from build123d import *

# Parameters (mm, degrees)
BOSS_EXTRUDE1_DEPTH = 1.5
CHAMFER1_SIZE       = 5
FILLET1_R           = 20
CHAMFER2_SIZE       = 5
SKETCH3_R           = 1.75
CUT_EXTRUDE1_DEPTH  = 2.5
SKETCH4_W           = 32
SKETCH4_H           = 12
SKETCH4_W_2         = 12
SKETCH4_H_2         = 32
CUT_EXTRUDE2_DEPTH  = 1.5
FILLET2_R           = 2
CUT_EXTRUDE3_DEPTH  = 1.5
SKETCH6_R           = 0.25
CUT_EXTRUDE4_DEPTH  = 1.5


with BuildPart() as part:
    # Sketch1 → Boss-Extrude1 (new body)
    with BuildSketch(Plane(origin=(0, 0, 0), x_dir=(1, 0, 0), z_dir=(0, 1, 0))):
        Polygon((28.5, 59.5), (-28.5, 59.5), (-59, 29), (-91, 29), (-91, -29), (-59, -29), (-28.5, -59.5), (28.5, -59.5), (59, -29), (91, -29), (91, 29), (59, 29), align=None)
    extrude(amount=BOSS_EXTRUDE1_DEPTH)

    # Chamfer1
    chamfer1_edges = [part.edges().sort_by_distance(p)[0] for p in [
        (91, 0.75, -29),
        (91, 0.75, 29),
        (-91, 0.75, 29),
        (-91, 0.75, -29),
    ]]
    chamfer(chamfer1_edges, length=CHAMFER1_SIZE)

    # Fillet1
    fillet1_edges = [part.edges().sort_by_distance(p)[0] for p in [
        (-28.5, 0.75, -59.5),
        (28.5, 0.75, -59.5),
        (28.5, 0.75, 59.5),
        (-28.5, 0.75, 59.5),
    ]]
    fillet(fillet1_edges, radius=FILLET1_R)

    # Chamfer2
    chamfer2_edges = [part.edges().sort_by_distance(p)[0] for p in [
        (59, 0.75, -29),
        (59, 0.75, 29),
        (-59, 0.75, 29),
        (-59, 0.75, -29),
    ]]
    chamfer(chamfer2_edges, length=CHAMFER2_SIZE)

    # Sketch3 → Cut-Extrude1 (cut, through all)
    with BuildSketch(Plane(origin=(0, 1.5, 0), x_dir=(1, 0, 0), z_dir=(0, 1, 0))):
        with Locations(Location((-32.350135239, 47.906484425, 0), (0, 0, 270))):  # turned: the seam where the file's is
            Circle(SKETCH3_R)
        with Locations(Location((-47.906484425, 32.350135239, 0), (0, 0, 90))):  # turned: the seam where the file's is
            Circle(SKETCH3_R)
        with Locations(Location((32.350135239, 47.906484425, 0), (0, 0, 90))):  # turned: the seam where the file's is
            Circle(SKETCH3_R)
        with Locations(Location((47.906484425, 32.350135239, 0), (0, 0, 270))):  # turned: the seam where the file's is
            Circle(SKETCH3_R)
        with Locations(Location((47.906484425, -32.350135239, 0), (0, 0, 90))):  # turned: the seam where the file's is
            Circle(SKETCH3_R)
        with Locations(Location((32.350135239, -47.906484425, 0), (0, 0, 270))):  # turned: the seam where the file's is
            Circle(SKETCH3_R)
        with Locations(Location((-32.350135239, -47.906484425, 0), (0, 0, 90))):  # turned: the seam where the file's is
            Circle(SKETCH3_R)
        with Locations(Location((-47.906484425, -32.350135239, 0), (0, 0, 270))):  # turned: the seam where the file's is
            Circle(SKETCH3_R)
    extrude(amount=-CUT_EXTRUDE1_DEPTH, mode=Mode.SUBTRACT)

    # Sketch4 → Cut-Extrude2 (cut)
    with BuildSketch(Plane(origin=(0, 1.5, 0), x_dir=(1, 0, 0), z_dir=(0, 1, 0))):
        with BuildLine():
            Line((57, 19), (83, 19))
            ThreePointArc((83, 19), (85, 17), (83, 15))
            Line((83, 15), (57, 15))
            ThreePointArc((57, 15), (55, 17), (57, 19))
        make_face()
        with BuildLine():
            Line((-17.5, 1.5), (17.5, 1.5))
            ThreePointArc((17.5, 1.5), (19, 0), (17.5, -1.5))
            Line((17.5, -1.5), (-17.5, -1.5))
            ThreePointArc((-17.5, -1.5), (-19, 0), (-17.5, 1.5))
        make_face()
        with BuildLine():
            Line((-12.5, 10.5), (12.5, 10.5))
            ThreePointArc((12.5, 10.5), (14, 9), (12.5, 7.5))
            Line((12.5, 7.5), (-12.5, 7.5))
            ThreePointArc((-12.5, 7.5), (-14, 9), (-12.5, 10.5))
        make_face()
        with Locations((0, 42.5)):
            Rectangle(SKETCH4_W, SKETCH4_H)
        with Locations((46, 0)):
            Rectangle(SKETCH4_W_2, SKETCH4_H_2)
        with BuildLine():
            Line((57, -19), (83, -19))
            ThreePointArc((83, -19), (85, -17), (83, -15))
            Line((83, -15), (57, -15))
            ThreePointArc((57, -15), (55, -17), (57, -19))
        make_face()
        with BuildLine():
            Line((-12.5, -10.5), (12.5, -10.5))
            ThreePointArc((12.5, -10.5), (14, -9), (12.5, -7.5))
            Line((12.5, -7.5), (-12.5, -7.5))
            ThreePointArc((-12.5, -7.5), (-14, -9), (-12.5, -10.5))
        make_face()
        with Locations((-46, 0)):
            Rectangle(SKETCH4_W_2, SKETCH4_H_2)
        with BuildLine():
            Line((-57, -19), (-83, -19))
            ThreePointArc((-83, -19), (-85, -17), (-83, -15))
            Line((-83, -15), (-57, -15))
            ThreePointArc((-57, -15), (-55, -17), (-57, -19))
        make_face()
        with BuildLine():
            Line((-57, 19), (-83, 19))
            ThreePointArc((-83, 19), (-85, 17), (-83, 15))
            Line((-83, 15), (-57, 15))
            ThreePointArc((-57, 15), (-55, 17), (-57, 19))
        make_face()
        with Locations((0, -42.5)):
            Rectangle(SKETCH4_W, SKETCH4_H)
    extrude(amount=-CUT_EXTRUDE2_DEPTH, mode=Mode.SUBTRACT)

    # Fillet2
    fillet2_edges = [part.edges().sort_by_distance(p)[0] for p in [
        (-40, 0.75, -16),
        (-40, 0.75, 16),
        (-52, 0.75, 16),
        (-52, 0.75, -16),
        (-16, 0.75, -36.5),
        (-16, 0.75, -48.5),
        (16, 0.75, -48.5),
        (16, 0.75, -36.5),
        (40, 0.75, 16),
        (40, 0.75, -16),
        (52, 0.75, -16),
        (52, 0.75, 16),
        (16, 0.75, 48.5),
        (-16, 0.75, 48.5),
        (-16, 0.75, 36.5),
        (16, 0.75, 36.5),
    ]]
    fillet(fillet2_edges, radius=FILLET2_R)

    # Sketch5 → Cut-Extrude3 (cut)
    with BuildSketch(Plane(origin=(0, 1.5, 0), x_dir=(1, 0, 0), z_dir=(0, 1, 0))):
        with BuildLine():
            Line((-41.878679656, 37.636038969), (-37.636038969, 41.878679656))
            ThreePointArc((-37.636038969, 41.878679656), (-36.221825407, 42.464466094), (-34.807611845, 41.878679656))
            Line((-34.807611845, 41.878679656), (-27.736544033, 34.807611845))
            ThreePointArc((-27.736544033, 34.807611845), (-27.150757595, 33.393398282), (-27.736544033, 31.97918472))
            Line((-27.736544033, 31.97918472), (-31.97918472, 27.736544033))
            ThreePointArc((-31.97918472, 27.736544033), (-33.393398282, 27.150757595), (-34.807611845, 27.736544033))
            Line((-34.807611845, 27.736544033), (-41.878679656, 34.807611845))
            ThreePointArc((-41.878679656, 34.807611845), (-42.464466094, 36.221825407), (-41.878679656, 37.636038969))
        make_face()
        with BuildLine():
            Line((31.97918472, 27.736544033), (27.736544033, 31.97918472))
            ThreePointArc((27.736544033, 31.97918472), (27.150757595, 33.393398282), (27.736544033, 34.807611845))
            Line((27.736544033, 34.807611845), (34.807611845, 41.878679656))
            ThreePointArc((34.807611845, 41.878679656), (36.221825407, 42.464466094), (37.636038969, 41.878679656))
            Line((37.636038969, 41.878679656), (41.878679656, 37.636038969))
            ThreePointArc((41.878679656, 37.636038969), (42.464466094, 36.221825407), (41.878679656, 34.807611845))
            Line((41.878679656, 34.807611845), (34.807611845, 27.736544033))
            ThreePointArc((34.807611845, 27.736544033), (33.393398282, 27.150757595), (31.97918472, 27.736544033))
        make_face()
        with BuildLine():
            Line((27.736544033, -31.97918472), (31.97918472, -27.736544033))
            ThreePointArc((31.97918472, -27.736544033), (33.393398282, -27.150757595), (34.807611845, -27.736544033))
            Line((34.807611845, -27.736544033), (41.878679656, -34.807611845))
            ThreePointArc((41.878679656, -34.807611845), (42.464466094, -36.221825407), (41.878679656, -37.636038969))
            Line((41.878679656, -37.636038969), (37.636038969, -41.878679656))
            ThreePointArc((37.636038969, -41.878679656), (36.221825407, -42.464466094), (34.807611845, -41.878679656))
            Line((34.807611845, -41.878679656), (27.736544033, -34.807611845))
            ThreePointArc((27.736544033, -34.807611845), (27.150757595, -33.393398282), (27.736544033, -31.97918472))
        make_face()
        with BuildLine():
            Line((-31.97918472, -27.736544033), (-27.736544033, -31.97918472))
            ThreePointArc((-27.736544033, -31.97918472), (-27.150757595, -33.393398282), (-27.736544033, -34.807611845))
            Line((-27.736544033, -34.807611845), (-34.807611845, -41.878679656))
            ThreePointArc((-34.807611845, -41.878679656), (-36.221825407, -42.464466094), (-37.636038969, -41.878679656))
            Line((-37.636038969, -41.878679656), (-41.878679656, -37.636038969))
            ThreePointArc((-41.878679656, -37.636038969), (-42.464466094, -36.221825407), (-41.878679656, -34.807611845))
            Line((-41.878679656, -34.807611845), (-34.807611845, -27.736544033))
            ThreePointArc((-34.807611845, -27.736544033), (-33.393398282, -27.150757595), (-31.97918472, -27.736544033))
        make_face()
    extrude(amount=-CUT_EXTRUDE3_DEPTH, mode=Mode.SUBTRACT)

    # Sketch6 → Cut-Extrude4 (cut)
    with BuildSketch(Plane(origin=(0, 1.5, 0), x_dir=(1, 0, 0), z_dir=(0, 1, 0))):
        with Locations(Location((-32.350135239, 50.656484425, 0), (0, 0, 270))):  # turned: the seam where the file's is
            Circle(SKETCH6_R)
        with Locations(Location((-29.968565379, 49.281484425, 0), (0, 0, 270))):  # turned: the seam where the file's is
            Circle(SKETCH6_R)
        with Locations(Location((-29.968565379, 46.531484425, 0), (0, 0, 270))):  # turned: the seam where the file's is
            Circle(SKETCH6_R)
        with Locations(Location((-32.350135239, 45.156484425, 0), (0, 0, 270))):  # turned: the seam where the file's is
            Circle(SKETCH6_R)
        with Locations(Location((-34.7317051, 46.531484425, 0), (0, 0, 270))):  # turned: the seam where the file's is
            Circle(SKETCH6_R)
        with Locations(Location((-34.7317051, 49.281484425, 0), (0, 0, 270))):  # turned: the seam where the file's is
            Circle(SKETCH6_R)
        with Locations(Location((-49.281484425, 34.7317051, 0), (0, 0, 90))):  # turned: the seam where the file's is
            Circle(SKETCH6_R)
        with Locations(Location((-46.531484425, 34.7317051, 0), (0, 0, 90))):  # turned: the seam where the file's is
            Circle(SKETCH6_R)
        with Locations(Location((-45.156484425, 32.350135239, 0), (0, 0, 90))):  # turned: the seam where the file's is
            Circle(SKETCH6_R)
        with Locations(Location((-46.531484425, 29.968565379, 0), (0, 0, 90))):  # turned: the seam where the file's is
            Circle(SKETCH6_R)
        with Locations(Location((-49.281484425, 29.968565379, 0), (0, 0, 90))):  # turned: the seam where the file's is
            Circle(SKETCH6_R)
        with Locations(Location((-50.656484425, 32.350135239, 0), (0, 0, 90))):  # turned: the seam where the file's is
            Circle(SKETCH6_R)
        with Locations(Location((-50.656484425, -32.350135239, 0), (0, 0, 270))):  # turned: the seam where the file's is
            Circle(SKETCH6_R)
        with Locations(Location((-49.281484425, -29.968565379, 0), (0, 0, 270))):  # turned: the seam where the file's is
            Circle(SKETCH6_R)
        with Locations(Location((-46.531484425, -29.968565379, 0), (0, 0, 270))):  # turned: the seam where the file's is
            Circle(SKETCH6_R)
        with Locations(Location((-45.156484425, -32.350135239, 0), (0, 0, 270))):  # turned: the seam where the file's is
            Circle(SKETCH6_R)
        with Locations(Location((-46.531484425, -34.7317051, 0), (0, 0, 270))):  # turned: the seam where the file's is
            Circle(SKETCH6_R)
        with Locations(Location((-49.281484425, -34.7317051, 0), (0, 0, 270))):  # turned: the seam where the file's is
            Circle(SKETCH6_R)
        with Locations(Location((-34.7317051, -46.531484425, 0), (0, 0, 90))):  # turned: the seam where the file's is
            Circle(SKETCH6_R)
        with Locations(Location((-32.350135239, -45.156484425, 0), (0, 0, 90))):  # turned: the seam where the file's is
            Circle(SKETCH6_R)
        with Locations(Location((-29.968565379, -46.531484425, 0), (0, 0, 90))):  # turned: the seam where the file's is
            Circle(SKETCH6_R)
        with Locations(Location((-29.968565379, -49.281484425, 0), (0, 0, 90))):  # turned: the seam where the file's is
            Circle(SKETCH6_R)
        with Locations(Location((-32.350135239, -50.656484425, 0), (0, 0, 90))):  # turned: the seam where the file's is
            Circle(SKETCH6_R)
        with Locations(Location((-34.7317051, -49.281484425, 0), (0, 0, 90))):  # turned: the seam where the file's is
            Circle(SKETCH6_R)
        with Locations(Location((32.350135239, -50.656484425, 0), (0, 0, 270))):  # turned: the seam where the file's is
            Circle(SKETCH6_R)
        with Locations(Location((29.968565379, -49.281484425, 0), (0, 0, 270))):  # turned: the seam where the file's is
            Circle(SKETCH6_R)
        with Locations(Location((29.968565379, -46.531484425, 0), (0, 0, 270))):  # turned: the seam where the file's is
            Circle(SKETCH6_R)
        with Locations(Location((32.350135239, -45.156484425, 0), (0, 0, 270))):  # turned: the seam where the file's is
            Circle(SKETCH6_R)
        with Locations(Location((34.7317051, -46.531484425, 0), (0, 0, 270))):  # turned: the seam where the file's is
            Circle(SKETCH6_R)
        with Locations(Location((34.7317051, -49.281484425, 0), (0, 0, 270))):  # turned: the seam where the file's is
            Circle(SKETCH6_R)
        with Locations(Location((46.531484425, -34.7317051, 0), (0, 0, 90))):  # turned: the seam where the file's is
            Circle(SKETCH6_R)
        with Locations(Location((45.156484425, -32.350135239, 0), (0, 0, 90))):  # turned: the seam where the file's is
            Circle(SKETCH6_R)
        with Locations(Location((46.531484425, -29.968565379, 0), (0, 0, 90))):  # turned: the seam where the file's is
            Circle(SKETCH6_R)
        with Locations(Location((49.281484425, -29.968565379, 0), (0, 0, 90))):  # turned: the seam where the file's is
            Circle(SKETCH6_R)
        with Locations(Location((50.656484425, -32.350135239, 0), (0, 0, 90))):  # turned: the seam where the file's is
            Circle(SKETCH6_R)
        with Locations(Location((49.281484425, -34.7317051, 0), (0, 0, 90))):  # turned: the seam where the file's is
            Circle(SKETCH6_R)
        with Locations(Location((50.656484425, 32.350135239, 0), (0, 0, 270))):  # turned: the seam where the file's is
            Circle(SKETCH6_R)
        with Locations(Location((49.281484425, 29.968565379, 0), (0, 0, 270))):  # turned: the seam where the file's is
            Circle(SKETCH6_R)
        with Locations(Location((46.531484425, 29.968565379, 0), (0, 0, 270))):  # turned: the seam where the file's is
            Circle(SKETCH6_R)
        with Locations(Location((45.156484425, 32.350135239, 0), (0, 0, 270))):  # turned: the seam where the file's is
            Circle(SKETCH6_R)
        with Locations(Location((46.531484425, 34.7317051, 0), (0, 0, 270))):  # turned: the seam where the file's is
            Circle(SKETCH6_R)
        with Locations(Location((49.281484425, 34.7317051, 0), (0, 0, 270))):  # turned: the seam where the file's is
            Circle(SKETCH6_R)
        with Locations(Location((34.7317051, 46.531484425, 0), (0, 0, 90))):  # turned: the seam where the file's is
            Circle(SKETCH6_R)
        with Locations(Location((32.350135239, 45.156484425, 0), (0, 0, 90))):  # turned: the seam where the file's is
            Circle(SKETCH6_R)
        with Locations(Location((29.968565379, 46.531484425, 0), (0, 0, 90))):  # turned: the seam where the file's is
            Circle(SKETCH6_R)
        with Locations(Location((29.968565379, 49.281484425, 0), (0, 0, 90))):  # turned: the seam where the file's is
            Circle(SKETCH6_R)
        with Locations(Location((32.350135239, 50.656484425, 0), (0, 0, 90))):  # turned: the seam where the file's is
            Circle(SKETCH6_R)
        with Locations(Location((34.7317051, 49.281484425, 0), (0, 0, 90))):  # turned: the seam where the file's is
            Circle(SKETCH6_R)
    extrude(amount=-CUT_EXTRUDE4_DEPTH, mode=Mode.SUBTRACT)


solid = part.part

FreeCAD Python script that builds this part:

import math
import FreeCAD as App
import Part
import Sketcher

V = App.Vector
Q = App.Units.Quantity


def edges_at(feature, points):
    """Names of the edges that pass closest to the given points."""
    edges = feature.Shape.Edges
    near = lambda p: min(range(len(edges)), key=lambda i: edges[i].distToShape(Part.Vertex(*p))[0])
    return sorted({f"Edge{near(p) + 1}" for p in points})


def add_polygon(sketch, points):
    """Adds a closed chain of lines whose ends are joined by coincident constraints."""
    first, n = sketch.GeometryCount, len(points)
    for a, b in zip(points, points[1:] + points[:1]):
        sketch.addGeometry(Part.LineSegment(App.Vector(*a, 0), App.Vector(*b, 0)), False)
    for i in range(n):
        sketch.addConstraint(Sketcher.Constraint("Coincident", first + i, 2, first + (i + 1) % n, 1))

doc = App.newDocument("Part")
body = doc.addObject("PartDesign::Body", "Body")

# Sketch on XZ plane
sketch1 = body.newObject("Sketcher::SketchObject", "Sketch")
sketch1.AttachmentSupport = (doc.getObject("XZ_Plane"), [""])
sketch1.MapMode = "FlatFace"
add_polygon(sketch1, [(28.5, -59.5), (-28.5, -59.5), (-59, -29), (-91, -29), (-91, 29), (-59, 29), (-28.5, 59.5), (28.5, 59.5), (59, 29), (91, 29), (91, -29), (59, -29)])  # lines 0-11
sketch1.addConstraint([
    Sketcher.Constraint("Horizontal", 0),
    Sketcher.Constraint("Horizontal", 2),
    Sketcher.Constraint("Vertical", 3),
    Sketcher.Constraint("Horizontal", 4),
    Sketcher.Constraint("Horizontal", 6),
    Sketcher.Constraint("Horizontal", 8),
    Sketcher.Constraint("Vertical", 9),
    Sketcher.Constraint("Horizontal", 10),
    Sketcher.Constraint("Symmetric", 0, 2, 6, 2, -1, 1),
    Sketcher.Constraint("Symmetric", 1, 2, 7, 2, -1, 1),
    Sketcher.Constraint("Symmetric", 3, 2, 9, 2, -1, 1),
    Sketcher.Constraint("Symmetric", 4, 2, 7, 2, -2),
    Sketcher.Constraint("Perpendicular", 1, 5),
    Sketcher.Constraint("Perpendicular", 7, 11),
    Sketcher.Constraint("Vertical", 0, 2, 5, 2),
    Sketcher.Constraint("Vertical", 7, 2, 10, 2),
    Sketcher.Constraint("DistanceX", 0, 2, 0, 1, Q("57 mm")),
    Sketcher.Constraint("DistanceX", 2, 2, 2, 1, Q("32 mm")),
    Sketcher.Constraint("DistanceY", 3, 1, 3, 2, Q("58 mm")),
    Sketcher.Constraint("DistanceX", 1, 2, -1, 1, Q("59 mm")),
])
pad1 = body.newObject("PartDesign::Pad", "Pad")
pad1.Profile = sketch1
pad1.Length = 1.5
pad1.Reversed = True
doc.recompute()

chamfer = body.newObject("PartDesign::Chamfer", "Chamfer")
chamfer.Base = (pad1, edges_at(pad1, [
    (91, 0.75, -29),
    (91, 0.75, 29),
    (-91, 0.75, 29),
    (-91, 0.75, -29),
]))
chamfer.Size = 5
doc.recompute()

fillet = body.newObject("PartDesign::Fillet", "Fillet")
fillet.Base = (chamfer, edges_at(chamfer, [
    (-28.5, 0.75, -59.5),
    (28.5, 0.75, -59.5),
    (28.5, 0.75, 59.5),
    (-28.5, 0.75, 59.5),
]))
fillet.Radius = 20
doc.recompute()

chamfer2 = body.newObject("PartDesign::Chamfer", "Chamfer001")
chamfer2.Base = (fillet, edges_at(fillet, [
    (59, 0.75, -29),
    (59, 0.75, 29),
    (-59, 0.75, 29),
    (-59, 0.75, -29),
]))
chamfer2.Size = 5

# Sketch on XZ plane
sketch2 = body.newObject("Sketcher::SketchObject", "Sketch001")
sketch2.AttachmentSupport = (doc.getObject("XZ_Plane"), [""])
sketch2.MapMode = "FlatFace"
sketch2.AttachmentOffset = App.Placement(V(0, 0, -1.5), App.Rotation())
sketch2.addGeometry([
    Part.Circle(V(-32.350135, -47.906484, 0), V(0, 0, 1), 1.75),  # 0
    Part.Circle(V(-47.906484, -32.350135, 0), V(0, 0, 1), 1.75),  # 1
    Part.Circle(V(32.350135, -47.906484, 0), V(0, 0, 1), 1.75),  # 2
    Part.Circle(V(47.906484, -32.350135, 0), V(0, 0, 1), 1.75),  # 3
    Part.Circle(V(47.906484, 32.350135, 0), V(0, 0, 1), 1.75),  # 4
    Part.Circle(V(32.350135, 47.906484, 0), V(0, 0, 1), 1.75),  # 5
    Part.Circle(V(-32.350135, 47.906484, 0), V(0, 0, 1), 1.75),  # 6
    Part.Circle(V(-47.906484, 32.350135, 0), V(0, 0, 1), 1.75),  # 7
], False)
sketch2.addConstraint([
    Sketcher.Constraint("Equal", 0, 1),
    Sketcher.Constraint("Equal", 1, 2),
    Sketcher.Constraint("Equal", 2, 3),
    Sketcher.Constraint("Equal", 3, 4),
    Sketcher.Constraint("Equal", 4, 5),
    Sketcher.Constraint("Equal", 5, 6),
    Sketcher.Constraint("Equal", 6, 7),
    Sketcher.Constraint("Symmetric", 1, 3, 4, 3, -1, 1),
    Sketcher.Constraint("Symmetric", 0, 3, 5, 3, -1, 1),
    Sketcher.Constraint("Symmetric", 2, 3, 6, 3, -1, 1),
    Sketcher.Constraint("Symmetric", 3, 3, 7, 3, -1, 1),
    Sketcher.Constraint("Symmetric", 0, 3, 2, 3, -2),
    Sketcher.Constraint("Symmetric", 1, 3, 3, 3, -2),
    Sketcher.Constraint("Diameter", 0, Q("3.5 mm")),
    Sketcher.Constraint("DistanceX", 1, 3, 0, 3, Q("15.556349 mm")),
    Sketcher.Constraint("DistanceY", 0, 3, 1, 3, Q("15.556349 mm")),
    Sketcher.Constraint("DistanceX", 0, 3, 2, 3, Q("64.70027 mm")),
    Sketcher.Constraint("DistanceY", 3, 3, 4, 3, Q("64.70027 mm")),
])
pocket1 = body.newObject("PartDesign::Pocket", "Pocket")
pocket1.Profile = sketch2
pocket1.Type = "ThroughAll"
pocket1.Reversed = True

# Sketch on XZ plane
sketch3 = body.newObject("Sketcher::SketchObject", "Sketch002")
sketch3.AttachmentSupport = (doc.getObject("XZ_Plane"), [""])
sketch3.MapMode = "FlatFace"
sketch3.AttachmentOffset = App.Placement(V(0, 0, -1.5), App.Rotation())
sketch3.addGeometry(Part.LineSegment(V(83, -19, 0), V(57, -19, 0)), False)  # 0
sketch3.addGeometry(Part.ArcOfCircle(Part.Circle(V(57, -17, 0), V(0, 0, 1), 2), math.radians(90), math.radians(270)), False)  # 1
sketch3.addGeometry(Part.LineSegment(V(57, -15, 0), V(83, -15, 0)), False)  # 2
sketch3.addGeometry(Part.ArcOfCircle(Part.Circle(V(83, -17, 0), V(0, 0, 1), 2), math.radians(-90), math.radians(90)), False)  # 3
sketch3.addGeometry(Part.LineSegment(V(17.5, -1.5, 0), V(-17.5, -1.5, 0)), False)  # 4
sketch3.addGeometry(Part.ArcOfCircle(Part.Circle(V(-17.5, 0, 0), V(0, 0, 1), 1.5), math.radians(90), math.radians(270)), False)  # 5
sketch3.addGeometry(Part.LineSegment(V(-17.5, 1.5, 0), V(17.5, 1.5, 0)), False)  # 6
sketch3.addGeometry(Part.ArcOfCircle(Part.Circle(V(17.5, 0, 0), V(0, 0, 1), 1.5), math.radians(-90), math.radians(90)), False)  # 7
sketch3.addGeometry(Part.LineSegment(V(12.5, -10.5, 0), V(-12.5, -10.5, 0)), False)  # 8
sketch3.addGeometry(Part.ArcOfCircle(Part.Circle(V(-12.5, -9, 0), V(0, 0, 1), 1.5), math.radians(90), math.radians(270)), False)  # 9
sketch3.addGeometry(Part.LineSegment(V(-12.5, -7.5, 0), V(12.5, -7.5, 0)), False)  # 10
sketch3.addGeometry(Part.ArcOfCircle(Part.Circle(V(12.5, -9, 0), V(0, 0, 1), 1.5), math.radians(-90), math.radians(90)), False)  # 11
add_polygon(sketch3, [(-16, -48.5), (-16, -36.5), (16, -36.5), (16, -48.5)])  # lines 12-15
add_polygon(sketch3, [(40, -16), (40, 16), (52, 16), (52, -16)])  # lines 16-19
sketch3.addGeometry(Part.LineSegment(V(57, 19, 0), V(83, 19, 0)), False)  # 20
sketch3.addGeometry(Part.ArcOfCircle(Part.Circle(V(83, 17, 0), V(0, 0, 1), 2), math.radians(-90), math.radians(90)), False)  # 21
sketch3.addGeometry(Part.LineSegment(V(83, 15, 0), V(57, 15, 0)), False)  # 22
sketch3.addGeometry(Part.ArcOfCircle(Part.Circle(V(57, 17, 0), V(0, 0, 1), 2), math.radians(90), math.radians(270)), False)  # 23
sketch3.addGeometry(Part.LineSegment(V(-12.5, 10.5, 0), V(12.5, 10.5, 0)), False)  # 24
sketch3.addGeometry(Part.ArcOfCircle(Part.Circle(V(12.5, 9, 0), V(0, 0, 1), 1.5), math.radians(-90), math.radians(90)), False)  # 25
sketch3.addGeometry(Part.LineSegment(V(12.5, 7.5, 0), V(-12.5, 7.5, 0)), False)  # 26
sketch3.addGeometry(Part.ArcOfCircle(Part.Circle(V(-12.5, 9, 0), V(0, 0, 1), 1.5), math.radians(90), math.radians(270)), False)  # 27
add_polygon(sketch3, [(-52, -16), (-52, 16), (-40, 16), (-40, -16)])  # lines 28-31
sketch3.addGeometry(Part.LineSegment(V(-83, 19, 0), V(-57, 19, 0)), False)  # 32
sketch3.addGeometry(Part.ArcOfCircle(Part.Circle(V(-57, 17, 0), V(0, 0, 1), 2), math.radians(-90), math.radians(90)), False)  # 33
sketch3.addGeometry(Part.LineSegment(V(-57, 15, 0), V(-83, 15, 0)), False)  # 34
sketch3.addGeometry(Part.ArcOfCircle(Part.Circle(V(-83, 17, 0), V(0, 0, 1), 2), math.radians(90), math.radians(270)), False)  # 35
sketch3.addGeometry(Part.LineSegment(V(-57, -19, 0), V(-83, -19, 0)), False)  # 36
sketch3.addGeometry(Part.ArcOfCircle(Part.Circle(V(-83, -17, 0), V(0, 0, 1), 2), math.radians(90), math.radians(270)), False)  # 37
sketch3.addGeometry(Part.LineSegment(V(-83, -15, 0), V(-57, -15, 0)), False)  # 38
sketch3.addGeometry(Part.ArcOfCircle(Part.Circle(V(-57, -17, 0), V(0, 0, 1), 2), math.radians(-90), math.radians(90)), False)  # 39
add_polygon(sketch3, [(-16, 36.5), (-16, 48.5), (16, 48.5), (16, 36.5)])  # lines 40-43
sketch3.addConstraint([
    Sketcher.Constraint("Tangent", 0, 2, 1, 2),
    Sketcher.Constraint("Tangent", 1, 1, 2, 1),
    Sketcher.Constraint("Tangent", 2, 2, 3, 2),
    Sketcher.Constraint("Tangent", 3, 1, 0, 1),
    Sketcher.Constraint("Tangent", 4, 2, 5, 2),
    Sketcher.Constraint("Tangent", 5, 1, 6, 1),
    Sketcher.Constraint("Tangent", 6, 2, 7, 2),
    Sketcher.Constraint("Tangent", 7, 1, 4, 1),
    Sketcher.Constraint("Tangent", 8, 2, 9, 2),
    Sketcher.Constraint("Tangent", 9, 1, 10, 1),
    Sketcher.Constraint("Tangent", 10, 2, 11, 2),
    Sketcher.Constraint("Tangent", 11, 1, 8, 1),
    Sketcher.Constraint("Tangent", 20, 2, 21, 2),
    Sketcher.Constraint("Tangent", 21, 1, 22, 1),
    Sketcher.Constraint("Tangent", 22, 2, 23, 2),
    Sketcher.Constraint("Tangent", 23, 1, 20, 1),
    Sketcher.Constraint("Tangent", 24, 2, 25, 2),
    Sketcher.Constraint("Tangent", 25, 1, 26, 1),
    Sketcher.Constraint("Tangent", 26, 2, 27, 2),
    Sketcher.Constraint("Tangent", 27, 1, 24, 1),
    Sketcher.Constraint("Tangent", 32, 2, 33, 2),
    Sketcher.Constraint("Tangent", 33, 1, 34, 1),
    Sketcher.Constraint("Tangent", 34, 2, 35, 2),
    Sketcher.Constraint("Tangent", 35, 1, 32, 1),
    Sketcher.Constraint("Tangent", 36, 2, 37, 2),
    Sketcher.Constraint("Tangent", 37, 1, 38, 1),
    Sketcher.Constraint("Tangent", 38, 2, 39, 2),
    Sketcher.Constraint("Tangent", 39, 1, 36, 1),
    Sketcher.Constraint("Horizontal", 0),
    Sketcher.Constraint("Horizontal", 2),
    Sketcher.Constraint("Horizontal", 4),
    Sketcher.Constraint("Horizontal", 6),
    Sketcher.Constraint("Horizontal", 8),
    Sketcher.Constraint("Horizontal", 10),
    Sketcher.Constraint("Vertical", 12),
    Sketcher.Constraint("Horizontal", 13),
    Sketcher.Constraint("Vertical", 14),
    Sketcher.Constraint("Horizontal", 15),
    Sketcher.Constraint("Vertical", 16),
    Sketcher.Constraint("Horizontal", 17),
    Sketcher.Constraint("Vertical", 18),
    Sketcher.Constraint("Horizontal", 19),
    Sketcher.Constraint("Horizontal", 20),
    Sketcher.Constraint("Horizontal", 22),
    Sketcher.Constraint("Horizontal", 24),
    Sketcher.Constraint("Horizontal", 26),
    Sketcher.Constraint("Vertical", 28),
    Sketcher.Constraint("Horizontal", 29),
    Sketcher.Constraint("Vertical", 30),
    Sketcher.Constraint("Horizontal", 31),
    Sketcher.Constraint("Horizontal", 32),
    Sketcher.Constraint("Horizontal", 34),
    Sketcher.Constraint("Horizontal", 36),
    Sketcher.Constraint("Horizontal", 38),
    Sketcher.Constraint("Vertical", 40),
    Sketcher.Constraint("Horizontal", 41),
    Sketcher.Constraint("Vertical", 42),
    Sketcher.Constraint("Horizontal", 43),
    Sketcher.Constraint("Equal", 7, 9),
    Sketcher.Constraint("Equal", 3, 21),
    Sketcher.Constraint("Equal", 11, 25),
    Sketcher.Constraint("Equal", 23, 33),
    Sketcher.Constraint("Equal", 35, 37),
    Sketcher.Constraint("Symmetric", 5, 3, 7, 3, -1, 1),
    Sketcher.Constraint("Symmetric", 9, 3, 25, 3, -1, 1),
    Sketcher.Constraint("Symmetric", 1, 3, 33, 3, -1, 1),
    Sketcher.Constraint("Symmetric", 21, 3, 37, 3, -1, 1),
    Sketcher.Constraint("Symmetric", 18, 2, 28, 2, -1, 1),
    Sketcher.Constraint("Symmetric", 16, 2, 30, 2, -1, 1),
    Sketcher.Constraint("Symmetric", 14, 2, 40, 2, -1, 1),
    Sketcher.Constraint("Symmetric", 12, 2, 42, 2, -1, 1),
    Sketcher.Constraint("Symmetric", 23, 3, 33, 3, -2),
    Sketcher.Constraint("Horizontal", 17, 2, 28, 2),
    Sketcher.Constraint("Vertical", 3, 3, 21, 3),
    Sketcher.Constraint("Vertical", 11, 3, 25, 3),
    Sketcher.Constraint("Vertical", 9, 3, 27, 3),
    Sketcher.Constraint("Vertical", 35, 3, 37, 3),
    Sketcher.Constraint("Vertical", 33, 3, 39, 3),
    Sketcher.Constraint("Vertical", 15, 2, 40, 2),
    Sketcher.Constraint("Equal", 31, 12),
    Sketcher.Constraint("Equal", 43, 16),
    Sketcher.Constraint("Radius", 1, Q("2 mm")),
    Sketcher.Constraint("Radius", 5, Q("1.5 mm")),
    Sketcher.Constraint("DistanceX", 0, 2, 0, 1, Q("26 mm")),
    Sketcher.Constraint("DistanceX", 4, 2, 4, 1, Q("35 mm")),
    Sketcher.Constraint("DistanceX", 8, 2, 8, 1, Q("25 mm")),
    Sketcher.Constraint("DistanceX", 13, 1, 13, 2, Q("32 mm")),
    Sketcher.Constraint("DistanceX", 17, 1, 17, 2, Q("12 mm")),
    Sketcher.Constraint("DistanceX", -1, 1, 1, 3, Q("57 mm")),
    Sketcher.Constraint("DistanceY", 1, 3, -1, 1, Q("17 mm")),
    Sketcher.Constraint("DistanceY", 9, 3, -1, 1, Q("9 mm")),
    Sketcher.Constraint("DistanceX", -1, 1, 16, 2, Q("40 mm")),
    Sketcher.Constraint("DistanceY", 12, 2, 8, 2, Q("26 mm")),
])
pocket2 = body.newObject("PartDesign::Pocket", "Pocket001")
pocket2.Profile = sketch3
pocket2.Length = 1.5
pocket2.Reversed = True
doc.recompute()

fillet2 = body.newObject("PartDesign::Fillet", "Fillet001")
fillet2.Base = (pocket2, edges_at(pocket2, [
    (-40, 0.75, -16),
    (-40, 0.75, 16),
    (-52, 0.75, 16),
    (-52, 0.75, -16),
    (-16, 0.75, -36.5),
    (-16, 0.75, -48.5),
    (16, 0.75, -48.5),
    (16, 0.75, -36.5),
    (40, 0.75, 16),
    (40, 0.75, -16),
    (52, 0.75, -16),
    (52, 0.75, 16),
    (16, 0.75, 48.5),
    (-16, 0.75, 48.5),
    (-16, 0.75, 36.5),
    (16, 0.75, 36.5),
]))
fillet2.Radius = 2

# Sketch on XZ plane
sketch4 = body.newObject("Sketcher::SketchObject", "Sketch003")
sketch4.AttachmentSupport = (doc.getObject("XZ_Plane"), [""])
sketch4.MapMode = "FlatFace"
sketch4.AttachmentOffset = App.Placement(V(0, 0, -1.5), App.Rotation())
sketch4.addGeometry([
    Part.LineSegment(V(-37.636039, -41.87868, 0), V(-41.87868, -37.636039, 0)),  # 0
    Part.ArcOfCircle(Part.Circle(V(-40.464466, -36.221825, 0), V(0, 0, 1), 2), math.radians(135), math.radians(225)),  # 1
    Part.LineSegment(V(-41.87868, -34.807612, 0), V(-34.807612, -27.736544, 0)),  # 2
    Part.ArcOfCircle(Part.Circle(V(-33.393398, -29.150758, 0), V(0, 0, 1), 2), math.radians(45), math.radians(135)),  # 3
    Part.LineSegment(V(-31.979185, -27.736544, 0), V(-27.736544, -31.979185, 0)),  # 4
    Part.ArcOfCircle(Part.Circle(V(-29.150758, -33.393398, 0), V(0, 0, 1), 2), math.radians(-45), math.radians(45)),  # 5
    Part.LineSegment(V(-27.736544, -34.807612, 0), V(-34.807612, -41.87868, 0)),  # 6
    Part.ArcOfCircle(Part.Circle(V(-36.221825, -40.464466, 0), V(0, 0, 1), 2), math.radians(-135), math.radians(-45)),  # 7
    Part.LineSegment(V(27.736544, -31.979185, 0), V(31.979185, -27.736544, 0)),  # 8
    Part.ArcOfCircle(Part.Circle(V(33.393398, -29.150758, 0), V(0, 0, 1), 2), math.radians(45), math.radians(135)),  # 9
    Part.LineSegment(V(34.807612, -27.736544, 0), V(41.87868, -34.807612, 0)),  # 10
    Part.ArcOfCircle(Part.Circle(V(40.464466, -36.221825, 0), V(0, 0, 1), 2), math.radians(-45), math.radians(45)),  # 11
    Part.LineSegment(V(41.87868, -37.636039, 0), V(37.636039, -41.87868, 0)),  # 12
    Part.ArcOfCircle(Part.Circle(V(36.221825, -40.464466, 0), V(0, 0, 1), 2), math.radians(-135), math.radians(-45)),  # 13
    Part.LineSegment(V(34.807612, -41.87868, 0), V(27.736544, -34.807612, 0)),  # 14
    Part.ArcOfCircle(Part.Circle(V(29.150758, -33.393398, 0), V(0, 0, 1), 2), math.radians(135), math.radians(225)),  # 15
    Part.LineSegment(V(31.979185, 27.736544, 0), V(27.736544, 31.979185, 0)),  # 16
    Part.ArcOfCircle(Part.Circle(V(29.150758, 33.393398, 0), V(0, 0, 1), 2), math.radians(135), math.radians(225)),  # 17
    Part.LineSegment(V(27.736544, 34.807612, 0), V(34.807612, 41.87868, 0)),  # 18
    Part.ArcOfCircle(Part.Circle(V(36.221825, 40.464466, 0), V(0, 0, 1), 2), math.radians(45), math.radians(135)),  # 19
    Part.LineSegment(V(37.636039, 41.87868, 0), V(41.87868, 37.636039, 0)),  # 20
    Part.ArcOfCircle(Part.Circle(V(40.464466, 36.221825, 0), V(0, 0, 1), 2), math.radians(-45), math.radians(45)),  # 21
    Part.LineSegment(V(41.87868, 34.807612, 0), V(34.807612, 27.736544, 0)),  # 22
    Part.ArcOfCircle(Part.Circle(V(33.393398, 29.150758, 0), V(0, 0, 1), 2), math.radians(-135), math.radians(-45)),  # 23
    Part.LineSegment(V(-27.736544, 31.979185, 0), V(-31.979185, 27.736544, 0)),  # 24
    Part.ArcOfCircle(Part.Circle(V(-33.393398, 29.150758, 0), V(0, 0, 1), 2), math.radians(-135), math.radians(-45)),  # 25
    Part.LineSegment(V(-34.807612, 27.736544, 0), V(-41.87868, 34.807612, 0)),  # 26
    Part.ArcOfCircle(Part.Circle(V(-40.464466, 36.221825, 0), V(0, 0, 1), 2), math.radians(135), math.radians(225)),  # 27
    Part.LineSegment(V(-41.87868, 37.636039, 0), V(-37.636039, 41.87868, 0)),  # 28
    Part.ArcOfCircle(Part.Circle(V(-36.221825, 40.464466, 0), V(0, 0, 1), 2), math.radians(45), math.radians(135)),  # 29
    Part.LineSegment(V(-34.807612, 41.87868, 0), V(-27.736544, 34.807612, 0)),  # 30
    Part.ArcOfCircle(Part.Circle(V(-29.150758, 33.393398, 0), V(0, 0, 1), 2), math.radians(-45), math.radians(45)),  # 31
], False)
sketch4.addConstraint([
    Sketcher.Constraint("Tangent", 0, 2, 1, 2),
    Sketcher.Constraint("Tangent", 1, 1, 2, 1),
    Sketcher.Constraint("Tangent", 2, 2, 3, 2),
    Sketcher.Constraint("Tangent", 3, 1, 4, 1),
    Sketcher.Constraint("Tangent", 4, 2, 5, 2),
    Sketcher.Constraint("Tangent", 5, 1, 6, 1),
    Sketcher.Constraint("Tangent", 6, 2, 7, 2),
    Sketcher.Constraint("Tangent", 7, 1, 0, 1),
    Sketcher.Constraint("Tangent", 8, 2, 9, 2),
    Sketcher.Constraint("Tangent", 9, 1, 10, 1),
    Sketcher.Constraint("Tangent", 10, 2, 11, 2),
    Sketcher.Constraint("Tangent", 11, 1, 12, 1),
    Sketcher.Constraint("Tangent", 12, 2, 13, 2),
    Sketcher.Constraint("Tangent", 13, 1, 14, 1),
    Sketcher.Constraint("Tangent", 14, 2, 15, 2),
    Sketcher.Constraint("Tangent", 15, 1, 8, 1),
    Sketcher.Constraint("Tangent", 16, 2, 17, 2),
    Sketcher.Constraint("Tangent", 17, 1, 18, 1),
    Sketcher.Constraint("Tangent", 18, 2, 19, 2),
    Sketcher.Constraint("Tangent", 19, 1, 20, 1),
    Sketcher.Constraint("Tangent", 20, 2, 21, 2),
    Sketcher.Constraint("Tangent", 21, 1, 22, 1),
    Sketcher.Constraint("Tangent", 22, 2, 23, 2),
    Sketcher.Constraint("Tangent", 23, 1, 16, 1),
    Sketcher.Constraint("Tangent", 24, 2, 25, 2),
    Sketcher.Constraint("Tangent", 25, 1, 26, 1),
    Sketcher.Constraint("Tangent", 26, 2, 27, 2),
    Sketcher.Constraint("Tangent", 27, 1, 28, 1),
    Sketcher.Constraint("Tangent", 28, 2, 29, 2),
    Sketcher.Constraint("Tangent", 29, 1, 30, 1),
    Sketcher.Constraint("Tangent", 30, 2, 31, 2),
    Sketcher.Constraint("Tangent", 31, 1, 24, 1),
    Sketcher.Constraint("Equal", 1, 3),
    Sketcher.Constraint("Equal", 3, 5),
    Sketcher.Constraint("Equal", 5, 7),
    Sketcher.Constraint("Equal", 7, 9),
    Sketcher.Constraint("Equal", 9, 11),
    Sketcher.Constraint("Equal", 11, 13),
    Sketcher.Constraint("Equal", 13, 15),
    Sketcher.Constraint("Equal", 15, 17),
    Sketcher.Constraint("Equal", 17, 19),
    Sketcher.Constraint("Equal", 19, 21),
    Sketcher.Constraint("Equal", 21, 23),
    Sketcher.Constraint("Equal", 23, 25),
    Sketcher.Constraint("Equal", 25, 27),
    Sketcher.Constraint("Equal", 27, 29),
    Sketcher.Constraint("Equal", 29, 31),
    Sketcher.Constraint("Symmetric", 5, 3, 17, 3, -1, 1),
    Sketcher.Constraint("Symmetric", 7, 3, 19, 3, -1, 1),
    Sketcher.Constraint("Symmetric", 1, 3, 21, 3, -1, 1),
    Sketcher.Constraint("Symmetric", 3, 3, 23, 3, -1, 1),
    Sketcher.Constraint("Symmetric", 9, 3, 25, 3, -1, 1),
    Sketcher.Constraint("Symmetric", 11, 3, 27, 3, -1, 1),
    Sketcher.Constraint("Symmetric", 13, 3, 29, 3, -1, 1),
    Sketcher.Constraint("Symmetric", 15, 3, 31, 3, -1, 1),
    Sketcher.Constraint("Symmetric", 3, 3, 9, 3, -2),
    Sketcher.Constraint("Symmetric", 1, 3, 11, 3, -2),
    Sketcher.Constraint("Symmetric", 7, 3, 13, 3, -2),
    Sketcher.Constraint("Symmetric", 5, 3, 15, 3, -2),
    Sketcher.Constraint("Perpendicular", 0, 2),
    Sketcher.Constraint("Perpendicular", 2, 4),
    Sketcher.Constraint("Perpendicular", 4, 6),
    Sketcher.Constraint("Parallel", 6, 8),
    Sketcher.Constraint("Horizontal", 1, 1, 5, 1),
    Sketcher.Constraint("Radius", 1, Q("2 mm")),
    Sketcher.Constraint("Distance", 0, Q("6 mm")),
    Sketcher.Constraint("DistanceX", 3, 3, -1, 1, Q("33.393398 mm")),
    Sketcher.Constraint("DistanceY", 5, 3, -1, 1, Q("33.393398 mm")),
])
pocket3 = body.newObject("PartDesign::Pocket", "Pocket002")
pocket3.Profile = sketch4
pocket3.Length = 1.5
pocket3.Reversed = True

# Sketch on XZ plane
sketch5 = body.newObject("Sketcher::SketchObject", "Sketch004")
sketch5.AttachmentSupport = (doc.getObject("XZ_Plane"), [""])
sketch5.MapMode = "FlatFace"
sketch5.AttachmentOffset = App.Placement(V(0, 0, -1.5), App.Rotation())
sketch5.addGeometry([
    Part.Circle(V(-32.350135, -50.656484, 0), V(0, 0, 1), 0.25),  # 0
    Part.Circle(V(-29.968565, -49.281484, 0), V(0, 0, 1), 0.25),  # 1
    Part.Circle(V(-29.968565, -46.531484, 0), V(0, 0, 1), 0.25),  # 2
    Part.Circle(V(-32.350135, -45.156484, 0), V(0, 0, 1), 0.25),  # 3
    Part.Circle(V(-34.731705, -46.531484, 0), V(0, 0, 1), 0.25),  # 4
    Part.Circle(V(-34.731705, -49.281484, 0), V(0, 0, 1), 0.25),  # 5
    Part.Circle(V(-49.281484, -34.731705, 0), V(0, 0, 1), 0.25),  # 6
    Part.Circle(V(-46.531484, -34.731705, 0), V(0, 0, 1), 0.25),  # 7
    Part.Circle(V(-45.156484, -32.350135, 0), V(0, 0, 1), 0.25),  # 8
    Part.Circle(V(-46.531484, -29.968565, 0), V(0, 0, 1), 0.25),  # 9
    Part.Circle(V(-49.281484, -29.968565, 0), V(0, 0, 1), 0.25),  # 10
    Part.Circle(V(-50.656484, -32.350135, 0), V(0, 0, 1), 0.25),  # 11
    Part.Circle(V(-50.656484, 32.350135, 0), V(0, 0, 1), 0.25),  # 12
    Part.Circle(V(-49.281484, 29.968565, 0), V(0, 0, 1), 0.25),  # 13
    Part.Circle(V(-46.531484, 29.968565, 0), V(0, 0, 1), 0.25),  # 14
    Part.Circle(V(-45.156484, 32.350135, 0), V(0, 0, 1), 0.25),  # 15
    Part.Circle(V(-46.531484, 34.731705, 0), V(0, 0, 1), 0.25),  # 16
    Part.Circle(V(-49.281484, 34.731705, 0), V(0, 0, 1), 0.25),  # 17
    Part.Circle(V(-34.731705, 46.531484, 0), V(0, 0, 1), 0.25),  # 18
    Part.Circle(V(-32.350135, 45.156484, 0), V(0, 0, 1), 0.25),  # 19
    Part.Circle(V(-29.968565, 46.531484, 0), V(0, 0, 1), 0.25),  # 20
    Part.Circle(V(-29.968565, 49.281484, 0), V(0, 0, 1), 0.25),  # 21
    Part.Circle(V(-32.350135, 50.656484, 0), V(0, 0, 1), 0.25),  # 22
    Part.Circle(V(-34.731705, 49.281484, 0), V(0, 0, 1), 0.25),  # 23
    Part.Circle(V(32.350135, 50.656484, 0), V(0, 0, 1), 0.25),  # 24
    Part.Circle(V(29.968565, 49.281484, 0), V(0, 0, 1), 0.25),  # 25
    Part.Circle(V(29.968565, 46.531484, 0), V(0, 0, 1), 0.25),  # 26
    Part.Circle(V(32.350135, 45.156484, 0), V(0, 0, 1), 0.25),  # 27
    Part.Circle(V(34.731705, 46.531484, 0), V(0, 0, 1), 0.25),  # 28
    Part.Circle(V(34.731705, 49.281484, 0), V(0, 0, 1), 0.25),  # 29
    Part.Circle(V(46.531484, 34.731705, 0), V(0, 0, 1), 0.25),  # 30
    Part.Circle(V(45.156484, 32.350135, 0), V(0, 0, 1), 0.25),  # 31
    Part.Circle(V(46.531484, 29.968565, 0), V(0, 0, 1), 0.25),  # 32
    Part.Circle(V(49.281484, 29.968565, 0), V(0, 0, 1), 0.25),  # 33
    Part.Circle(V(50.656484, 32.350135, 0), V(0, 0, 1), 0.25),  # 34
    Part.Circle(V(49.281484, 34.731705, 0), V(0, 0, 1), 0.25),  # 35
    Part.Circle(V(50.656484, -32.350135, 0), V(0, 0, 1), 0.25),  # 36
    Part.Circle(V(49.281484, -29.968565, 0), V(0, 0, 1), 0.25),  # 37
    Part.Circle(V(46.531484, -29.968565, 0), V(0, 0, 1), 0.25),  # 38
    Part.Circle(V(45.156484, -32.350135, 0), V(0, 0, 1), 0.25),  # 39
    Part.Circle(V(46.531484, -34.731705, 0), V(0, 0, 1), 0.25),  # 40
    Part.Circle(V(49.281484, -34.731705, 0), V(0, 0, 1), 0.25),  # 41
    Part.Circle(V(34.731705, -46.531484, 0), V(0, 0, 1), 0.25),  # 42
    Part.Circle(V(32.350135, -45.156484, 0), V(0, 0, 1), 0.25),  # 43
    Part.Circle(V(29.968565, -46.531484, 0), V(0, 0, 1), 0.25),  # 44
    Part.Circle(V(29.968565, -49.281484, 0), V(0, 0, 1), 0.25),  # 45
    Part.Circle(V(32.350135, -50.656484, 0), V(0, 0, 1), 0.25),  # 46
    Part.Circle(V(34.731705, -49.281484, 0), V(0, 0, 1), 0.25),  # 47
], False)
sketch5.addConstraint([
    Sketcher.Constraint("Equal", 0, 1),
    Sketcher.Constraint("Equal", 1, 2),
    Sketcher.Constraint("Equal", 2, 3),
    Sketcher.Constraint("Equal", 3, 4),
    Sketcher.Constraint("Equal", 4, 5),
    Sketcher.Constraint("Equal", 5, 6),
    Sketcher.Constraint("Equal", 6, 7),
    Sketcher.Constraint("Equal", 7, 8),
    Sketcher.Constraint("Equal", 8, 9),
    Sketcher.Constraint("Equal", 9, 10),
    Sketcher.Constraint("Equal", 10, 11),
    Sketcher.Constraint("Equal", 11, 12),
    Sketcher.Constraint("Equal", 12, 13),
    Sketcher.Constraint("Equal", 13, 14),
    Sketcher.Constraint("Equal", 14, 15),
    Sketcher.Constraint("Equal", 15, 16),
    Sketcher.Constraint("Equal", 16, 17),
    Sketcher.Constraint("Equal", 17, 18),
    Sketcher.Constraint("Equal", 18, 19),
    Sketcher.Constraint("Equal", 19, 20),
    Sketcher.Constraint("Equal", 20, 21),
    Sketcher.Constraint("Equal", 21, 22),
    Sketcher.Constraint("Equal", 22, 23),
    Sketcher.Constraint("Equal", 23, 24),
    Sketcher.Constraint("Equal", 24, 25),
    Sketcher.Constraint("Equal", 25, 26),
    Sketcher.Constraint("Equal", 26, 27),
    Sketcher.Constraint("Equal", 27, 28),
    Sketcher.Constraint("Equal", 28, 29),
    Sketcher.Constraint("Equal", 29, 30),
    Sketcher.Constraint("Equal", 30, 31),
    Sketcher.Constraint("Equal", 31, 32),
    Sketcher.Constraint("Equal", 32, 33),
    Sketcher.Constraint("Equal", 33, 34),
    Sketcher.Constraint("Equal", 34, 35),
    Sketcher.Constraint("Equal", 35, 36),
    Sketcher.Constraint("Equal", 36, 37),
    Sketcher.Constraint("Equal", 37, 38),
    Sketcher.Constraint("Equal", 38, 39),
    Sketcher.Constraint("Equal", 39, 40),
    Sketcher.Constraint("Equal", 40, 41),
    Sketcher.Constraint("Equal", 41, 42),
    Sketcher.Constraint("Equal", 42, 43),
    Sketcher.Constraint("Equal", 43, 44),
    Sketcher.Constraint("Equal", 44, 45),
    Sketcher.Constraint("Equal", 45, 46),
    Sketcher.Constraint("Equal", 46, 47),
    Sketcher.Constraint("Symmetric", 0, 3, 24, 3, -1, 1),
    Sketcher.Constraint("Symmetric", 1, 3, 25, 3, -1, 1),
    Sketcher.Constraint("Symmetric", 2, 3, 26, 3, -1, 1),
    Sketcher.Constraint("Symmetric", 3, 3, 27, 3, -1, 1),
    Sketcher.Constraint("Symmetric", 4, 3, 28, 3, -1, 1),
    Sketcher.Constraint("Symmetric", 5, 3, 29, 3, -1, 1),
    Sketcher.Constraint("Symmetric", 7, 3, 30, 3, -1, 1),
    Sketcher.Constraint("Symmetric", 8, 3, 31, 3, -1, 1),
    Sketcher.Constraint("Symmetric", 9, 3, 32, 3, -1, 1),
    Sketcher.Constraint("Symmetric", 10, 3, 33, 3, -1, 1),
    Sketcher.Constraint("Symmetric", 11, 3, 34, 3, -1, 1),
    Sketcher.Constraint("Symmetric", 6, 3, 35, 3, -1, 1),
    Sketcher.Constraint("Symmetric", 12, 3, 36, 3, -1, 1),
    Sketcher.Constraint("Symmetric", 13, 3, 37, 3, -1, 1),
    Sketcher.Constraint("Symmetric", 14, 3, 38, 3, -1, 1),
    Sketcher.Constraint("Symmetric", 15, 3, 39, 3, -1, 1),
    Sketcher.Constraint("Symmetric", 16, 3, 40, 3, -1, 1),
    Sketcher.Constraint("Symmetric", 17, 3, 41, 3, -1, 1),
    Sketcher.Constraint("Symmetric", 18, 3, 42, 3, -1, 1),
    Sketcher.Constraint("Symmetric", 19, 3, 43, 3, -1, 1),
    Sketcher.Constraint("Symmetric", 20, 3, 44, 3, -1, 1),
    Sketcher.Constraint("Symmetric", 21, 3, 45, 3, -1, 1),
    Sketcher.Constraint("Symmetric", 22, 3, 46, 3, -1, 1),
    Sketcher.Constraint("Symmetric", 23, 3, 47, 3, -1, 1),
    Sketcher.Constraint("Symmetric", 22, 3, 24, 3, -2),
    Sketcher.Constraint("Symmetric", 21, 3, 25, 3, -2),
    Sketcher.Constraint("Symmetric", 20, 3, 26, 3, -2),
    Sketcher.Constraint("Symmetric", 19, 3, 27, 3, -2),
    Sketcher.Constraint("Symmetric", 18, 3, 28, 3, -2),
    Sketcher.Constraint("Symmetric", 23, 3, 29, 3, -2),
    Sketcher.Constraint("Symmetric", 16, 3, 30, 3, -2),
    Sketcher.Constraint("Symmetric", 15, 3, 31, 3, -2),
    Sketcher.Constraint("Symmetric", 14, 3, 32, 3, -2),
    Sketcher.Constraint("Symmetric", 13, 3, 33, 3, -2),
    Sketcher.Constraint("Symmetric", 12, 3, 34, 3, -2),
    Sketcher.Constraint("Symmetric", 17, 3, 35, 3, -2),
    Sketcher.Constraint("Horizontal", 2, 3, 4, 3),
    Sketcher.Constraint("Horizontal", 1, 3, 5, 3),
    Sketcher.Constraint("Horizontal", 6, 3, 7, 3),
    Sketcher.Constraint("Horizontal", 9, 3, 10, 3),
    Sketcher.Constraint("Horizontal", 8, 3, 11, 3),
    Sketcher.Constraint("Vertical", 1, 3, 2, 3),
    Sketcher.Constraint("Vertical", 0, 3, 3, 3),
    Sketcher.Constraint("Vertical", 4, 3, 5, 3),
    Sketcher.Constraint("Vertical", 7, 3, 9, 3),
    Sketcher.Constraint("Vertical", 6, 3, 10, 3),
    Sketcher.Constraint("Diameter", 0, Q("0.5 mm")),
    Sketcher.Constraint("DistanceY", 0, 3, 3, 3, Q("5.5 mm")),
    Sketcher.Constraint("DistanceX", 11, 3, 8, 3, Q("5.5 mm")),
    Sketcher.Constraint("DistanceY", 1, 3, 2, 3, Q("2.75 mm")),
    Sketcher.Constraint("DistanceX", 6, 3, 7, 3, Q("2.75 mm")),
    Sketcher.Constraint("DistanceY", 0, 3, 1, 3, Q("1.375 mm")),
    Sketcher.Constraint("DistanceX", 7, 3, 8, 3, Q("1.375 mm")),
    Sketcher.Constraint("DistanceY", 10, 3, 12, 3, Q("62.318701 mm")),
    Sketcher.Constraint("DistanceX", 21, 3, 24, 3, Q("62.318701 mm")),
    Sketcher.Constraint("DistanceX", 0, 3, 1, 3, Q("2.38157 mm")),
    Sketcher.Constraint("DistanceX", 4, 3, 3, 3, Q("2.38157 mm")),
    Sketcher.Constraint("DistanceX", 6, 3, 4, 3, Q("14.549779 mm")),
    Sketcher.Constraint("DistanceY", 4, 3, 6, 3, Q("11.799779 mm")),
    Sketcher.Constraint("DistanceY", 7, 3, 8, 3, Q("2.38157 mm")),
    Sketcher.Constraint("DistanceY", 8, 3, 9, 3, Q("2.38157 mm")),
])
pocket4 = body.newObject("PartDesign::Pocket", "Pocket003")
pocket4.Profile = sketch5
pocket4.Length = 1.5
pocket4.Reversed = True

doc.recompute()
